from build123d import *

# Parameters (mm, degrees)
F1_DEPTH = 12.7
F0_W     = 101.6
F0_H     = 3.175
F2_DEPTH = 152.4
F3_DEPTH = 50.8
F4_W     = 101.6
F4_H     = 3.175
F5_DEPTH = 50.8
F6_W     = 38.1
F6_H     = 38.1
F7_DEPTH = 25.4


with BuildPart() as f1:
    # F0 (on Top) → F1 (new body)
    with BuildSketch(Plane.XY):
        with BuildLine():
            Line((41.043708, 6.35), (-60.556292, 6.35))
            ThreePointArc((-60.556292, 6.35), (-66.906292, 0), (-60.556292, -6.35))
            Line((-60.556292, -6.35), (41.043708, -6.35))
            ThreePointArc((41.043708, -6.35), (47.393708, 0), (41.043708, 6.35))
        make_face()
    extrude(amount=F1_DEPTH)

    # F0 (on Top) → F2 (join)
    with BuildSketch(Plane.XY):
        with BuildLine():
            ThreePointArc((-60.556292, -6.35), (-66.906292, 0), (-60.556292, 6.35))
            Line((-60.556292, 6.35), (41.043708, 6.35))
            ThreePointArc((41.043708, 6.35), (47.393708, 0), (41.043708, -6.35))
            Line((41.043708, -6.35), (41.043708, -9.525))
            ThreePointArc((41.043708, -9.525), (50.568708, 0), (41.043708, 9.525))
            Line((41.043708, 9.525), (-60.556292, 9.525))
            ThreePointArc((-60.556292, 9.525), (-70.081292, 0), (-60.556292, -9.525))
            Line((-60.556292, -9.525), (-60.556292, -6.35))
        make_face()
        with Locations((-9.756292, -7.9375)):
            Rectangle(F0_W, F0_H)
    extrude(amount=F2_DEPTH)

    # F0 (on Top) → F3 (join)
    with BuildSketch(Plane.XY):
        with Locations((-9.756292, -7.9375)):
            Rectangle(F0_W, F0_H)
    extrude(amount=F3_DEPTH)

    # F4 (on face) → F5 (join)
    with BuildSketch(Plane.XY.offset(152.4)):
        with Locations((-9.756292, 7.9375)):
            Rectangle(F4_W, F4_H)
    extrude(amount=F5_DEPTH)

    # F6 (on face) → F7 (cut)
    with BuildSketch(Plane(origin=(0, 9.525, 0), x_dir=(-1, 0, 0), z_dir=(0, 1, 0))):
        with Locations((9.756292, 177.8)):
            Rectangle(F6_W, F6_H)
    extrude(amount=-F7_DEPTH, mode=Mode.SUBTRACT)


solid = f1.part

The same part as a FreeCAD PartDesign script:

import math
import FreeCAD as App
import Part
import Sketcher
Q = App.Units.Quantity


def add_polygon(sketch, points):
    """Adds a closed chain of lines whose ends are joined by coincident constraints."""
    first, n = sketch.GeometryCount, len(points)
    for a, b in zip(points, points[1:] + points[:1]):
        sketch.addGeometry(Part.LineSegment(App.Vector(*a, 0), App.Vector(*b, 0)), False)
    for i in range(n):
        sketch.addConstraint(Sketcher.Constraint("Coincident", first + i, 2, first + (i + 1) % n, 1))

doc = App.newDocument("Part")
body = doc.addObject("PartDesign::Body", "Body")

# Sketch on XY plane
sketch1 = body.newObject("Sketcher::SketchObject", "Sketch")
sketch1.AttachmentSupport = (doc.getObject("XY_Plane"), [""])
sketch1.MapMode = "FlatFace"
sketch1.addGeometry(Part.LineSegment(App.Vector(41.043708, 6.35, 0), App.Vector(-60.556292, 6.35, 0)), False)
sketch1.addGeometry(Part.ArcOfCircle(Part.Circle(App.Vector(-60.556292, 0, 0), App.Vector(0, 0, 1), 6.35), math.radians(90), math.radians(270)), False)
sketch1.addGeometry(Part.LineSegment(App.Vector(-60.556292, -6.35, 0), App.Vector(41.043708, -6.35, 0)), False)
sketch1.addGeometry(Part.ArcOfCircle(Part.Circle(App.Vector(41.043708, 0, 0), App.Vector(0, 0, 1), 6.35), math.radians(-90), math.radians(90)), False)
sketch1.addConstraint(Sketcher.Constraint("Tangent", 0, 2, 1, 1))
sketch1.addConstraint(Sketcher.Constraint("Tangent", 1, 2, 2, 1))
sketch1.addConstraint(Sketcher.Constraint("Tangent", 2, 2, 3, 1))
sketch1.addConstraint(Sketcher.Constraint("Tangent", 3, 2, 0, 1))
sketch1.addConstraint(Sketcher.Constraint("Horizontal", 0))
sketch1.addConstraint(Sketcher.Constraint("Horizontal", 2))
sketch1.addConstraint(Sketcher.Constraint("PointOnObject", 1, 3, -1))
sketch1.addConstraint(Sketcher.Constraint("DistanceX", 0, 2, 0, 1, Q("4 in")))
sketch1.addConstraint(Sketcher.Constraint("Radius", 1, Q("0.25 in")))
sketch1.addConstraint(Sketcher.Constraint("DistanceX", -1, 1, 3, 3, 41.043708))
pad1 = body.newObject("PartDesign::Pad", "Pad")
pad1.Profile = sketch1
pad1.Length = Q("0.5 in")

# Sketch on XY plane
sketch2 = body.newObject("Sketcher::SketchObject", "Sketch001")
sketch2.AttachmentSupport = (doc.getObject("XY_Plane"), [""])
sketch2.MapMode = "FlatFace"
sketch2.addGeometry(Part.ArcOfCircle(Part.Circle(App.Vector(41.043708, 0, 0), App.Vector(0, 0, 1), 9.525), math.radians(-90), math.radians(90)), False)
sketch2.addGeometry(Part.LineSegment(App.Vector(41.043708, 9.525, 0), App.Vector(-60.556292, 9.525, 0)), False)
sketch2.addGeometry(Part.ArcOfCircle(Part.Circle(App.Vector(-60.556292, 0, 0), App.Vector(0, 0, 1), 9.525), math.radians(90), math.radians(270)), False)
sketch2.addGeometry(Part.LineSegment(App.Vector(-60.556292, -9.525, 0), App.Vector(41.043708, -9.525, 0)), False)
sketch2.addGeometry(Part.ArcOfCircle(Part.Circle(App.Vector(-60.556292, 0, 0), App.Vector(0, 0, 1), 6.35), math.radians(90), math.radians(270)), False)
sketch2.addGeometry(Part.LineSegment(App.Vector(-60.556292, 6.35, 0), App.Vector(41.043708, 6.35, 0)), False)
sketch2.addGeometry(Part.ArcOfCircle(Part.Circle(App.Vector(41.043708, 0, 0), App.Vector(0, 0, 1), 6.35), math.radians(-90), math.radians(90)), False)
sketch2.addGeometry(Part.LineSegment(App.Vector(41.043708, -6.35, 0), App.Vector(-60.556292, -6.35, 0)), False)
sketch2.addConstraint(Sketcher.Constraint("Tangent", 0, 2, 1, 1))
sketch2.addConstraint(Sketcher.Constraint("Tangent", 1, 2, 2, 1))
sketch2.addConstraint(Sketcher.Constraint("Tangent", 2, 2, 3, 1))
sketch2.addConstraint(Sketcher.Constraint("Tangent", 3, 2, 0, 1))
sketch2.addConstraint(Sketcher.Constraint("Tangent", 4, 1, 5, 1))
sketch2.addConstraint(Sketcher.Constraint("Tangent", 5, 2, 6, 2))
sketch2.addConstraint(Sketcher.Constraint("Tangent", 6, 1, 7, 1))
sketch2.addConstraint(Sketcher.Constraint("Tangent", 7, 2, 4, 2))
sketch2.addConstraint(Sketcher.Constraint("Horizontal", 1))
sketch2.addConstraint(Sketcher.Constraint("Horizontal", 3))
sketch2.addConstraint(Sketcher.Constraint("Horizontal", 5))
sketch2.addConstraint(Sketcher.Constraint("Horizontal", 7))
sketch2.addConstraint(Sketcher.Constraint("Coincident", 4, 3, 2, 3))
sketch2.addConstraint(Sketcher.Constraint("PointOnObject", 0, 3, -1))
sketch2.addConstraint(Sketcher.Constraint("Vertical", 6, 3, 0, 2))
sketch2.addConstraint(Sketcher.Constraint("DistanceX", 1, 2, 1, 1, Q("4 in")))
sketch2.addConstraint(Sketcher.Constraint("Radius", 4, Q("0.25 in")))
sketch2.addConstraint(Sketcher.Constraint("Radius", 0, Q("0.375 in")))
sketch2.addConstraint(Sketcher.Constraint("DistanceX", -1, 1, 0, 3, 41.043708))
pad2 = body.newObject("PartDesign::Pad", "Pad001")
pad2.Profile = sketch2
pad2.Length = Q("6 in")

# Sketch on XY plane
sketch3 = body.newObject("Sketcher::SketchObject", "Sketch002")
sketch3.AttachmentSupport = (doc.getObject("XY_Plane"), [""])
sketch3.MapMode = "FlatFace"
add_polygon(sketch3, [(-60.556292, -6.35), (-60.556292, -9.525), (41.043708, -9.525), (41.043708, -6.35)])  # lines 0-3
sketch3.addConstraint(Sketcher.Constraint("Vertical", 0))
sketch3.addConstraint(Sketcher.Constraint("Horizontal", 1))
sketch3.addConstraint(Sketcher.Constraint("Vertical", 2))
sketch3.addConstraint(Sketcher.Constraint("Horizontal", 3))
sketch3.addConstraint(Sketcher.Constraint("DistanceX", 1, 1, 1, 2, Q("4 in")))
sketch3.addConstraint(Sketcher.Constraint("DistanceY", 0, 2, 0, 1, Q("0.125 in")))
sketch3.addConstraint(Sketcher.Constraint("DistanceY", 2, 2, -1, 1, Q("0.25 in")))
sketch3.addConstraint(Sketcher.Constraint("DistanceX", -1, 1, 1, 2, 41.043708))
pad3 = body.newObject("PartDesign::Pad", "Pad002")
pad3.Profile = sketch3
pad3.Length = Q("2 in")

# Sketch on XY plane
sketch4 = body.newObject("Sketcher::SketchObject", "Sketch003")
sketch4.AttachmentSupport = (doc.getObject("XY_Plane"), [""])
sketch4.MapMode = "FlatFace"
sketch4.AttachmentOffset = App.Placement(App.Vector(0, 0, 6 * 25.4), App.Rotation())
add_polygon(sketch4, [(-60.556292, 9.525), (-60.556292, 6.35), (41.043708, 6.35), (41.043708, 9.525)])  # lines 0-3
sketch4.addConstraint(Sketcher.Constraint("Vertical", 0))
sketch4.addConstraint(Sketcher.Constraint("Horizontal", 1))
sketch4.addConstraint(Sketcher.Constraint("Vertical", 2))
sketch4.addConstraint(Sketcher.Constraint("Horizontal", 3))
sketch4.addConstraint(Sketcher.Constraint("DistanceX", 1, 1, 1, 2, Q("4 in")))
sketch4.addConstraint(Sketcher.Constraint("DistanceY", 0, 2, 0, 1, Q("0.125 in")))
sketch4.addConstraint(Sketcher.Constraint("DistanceY", -1, 1, 0, 2, Q("0.25 in")))
sketch4.addConstraint(Sketcher.Constraint("DistanceX", -1, 1, 1, 2, 41.043708))
pad4 = body.newObject("PartDesign::Pad", "Pad003")
pad4.Profile = sketch4
pad4.Length = Q("2 in")

# Sketch on XZ plane
sketch5 = body.newObject("Sketcher::SketchObject", "Sketch004")
sketch5.AttachmentSupport = (doc.getObject("XZ_Plane"), [""])
sketch5.MapMode = "FlatFace"
sketch5.AttachmentOffset = App.Placement(App.Vector(0, 0, -0.375 * 25.4), App.Rotation())
add_polygon(sketch5, [(9.293708, 196.85), (9.293708, 158.75), (-28.806292, 158.75), (-28.806292, 196.85)])  # lines 0-3
sketch5.addConstraint(Sketcher.Constraint("Vertical", 0))
sketch5.addConstraint(Sketcher.Constraint("Horizontal", 1))
sketch5.addConstraint(Sketcher.Constraint("Vertical", 2))
sketch5.addConstraint(Sketcher.Constraint("Horizontal", 3))
sketch5.addConstraint(Sketcher.Constraint("Equal", 3, 0))
sketch5.addConstraint(Sketcher.Constraint("DistanceX", 1, 2, 1, 1, Q("1.5 in")))
sketch5.addConstraint(Sketcher.Constraint("DistanceY", -1, 1, 0, 2, Q("6.25 in")))
sketch5.addConstraint(Sketcher.Constraint("DistanceX", 1, 2, -1, 1, 28.806292))
pocket1 = body.newObject("PartDesign::Pocket", "Pocket")
pocket1.Profile = sketch5
pocket1.Length = Q("1 in")
pocket1.Reversed = True

doc.recompute()
